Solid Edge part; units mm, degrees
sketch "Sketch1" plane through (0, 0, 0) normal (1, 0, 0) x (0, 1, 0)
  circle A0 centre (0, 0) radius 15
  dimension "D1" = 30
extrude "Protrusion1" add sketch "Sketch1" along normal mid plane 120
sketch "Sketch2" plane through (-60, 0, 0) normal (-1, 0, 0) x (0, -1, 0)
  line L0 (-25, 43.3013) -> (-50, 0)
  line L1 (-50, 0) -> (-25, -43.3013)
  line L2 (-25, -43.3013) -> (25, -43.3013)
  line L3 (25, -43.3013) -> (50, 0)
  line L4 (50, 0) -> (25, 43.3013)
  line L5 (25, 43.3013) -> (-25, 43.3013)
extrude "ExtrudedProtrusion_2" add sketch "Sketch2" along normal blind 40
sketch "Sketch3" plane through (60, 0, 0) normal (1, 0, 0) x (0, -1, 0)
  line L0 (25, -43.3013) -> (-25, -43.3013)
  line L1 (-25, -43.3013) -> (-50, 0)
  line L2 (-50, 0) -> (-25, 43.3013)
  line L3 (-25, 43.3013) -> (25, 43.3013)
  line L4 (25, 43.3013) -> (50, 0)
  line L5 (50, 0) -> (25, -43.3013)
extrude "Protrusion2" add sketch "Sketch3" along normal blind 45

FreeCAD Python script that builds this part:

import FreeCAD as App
import Part
import Sketcher
from FreeCAD import Vector
Q = App.Units.Quantity


def add_polygon(sketch, points):
    """Adds a closed chain of lines whose ends are joined by coincident constraints."""
    first, n = sketch.GeometryCount, len(points)
    for a, b in zip(points, points[1:] + points[:1]):
        sketch.addGeometry(Part.LineSegment(App.Vector(*a, 0), App.Vector(*b, 0)), False)
    for i in range(n):
        sketch.addConstraint(Sketcher.Constraint("Coincident", first + i, 2, first + (i + 1) % n, 1))

doc = App.newDocument("Part")
body = doc.addObject("PartDesign::Body", "Body")

# Sketch on YZ plane
sketch1 = body.newObject("Sketcher::SketchObject", "Sketch")
sketch1.AttachmentSupport = (doc.getObject("YZ_Plane"), [""])
sketch1.MapMode = "FlatFace"
sketch1.addGeometry(Part.Circle(Vector(0, 0, 0), Vector(0, 0, 1), 15), False)
sketch1.addConstraint([
    Sketcher.Constraint("Coincident", 0, 3, -1, 1),
    Sketcher.Constraint("Diameter", 0, 30.0),
])
pad1 = body.newObject("PartDesign::Pad", "Pad")
pad1.Profile = sketch1
pad1.Length = 120
pad1.Midplane = True

# Sketch on YZ plane
sketch2 = body.newObject("Sketcher::SketchObject", "Sketch001")
sketch2.AttachmentSupport = (doc.getObject("YZ_Plane"), [""])
sketch2.MapMode = "FlatFace"
sketch2.AttachmentOffset = App.Placement(Vector(0, 0, -60), App.Rotation())
add_polygon(sketch2, [(-25, 43), (25, 43), (50, 0), (25, -43), (-25, -43), (-50, 0)])  # lines 0-5
sketch2.addConstraint([
    Sketcher.Constraint("Horizontal", 0),
    Sketcher.Constraint("Horizontal", 3),
    Sketcher.Constraint("Symmetric", 0, 2, 3, 2, -1, 1),
    Sketcher.Constraint("Symmetric", 1, 2, 4, 2, -1, 1),
    Sketcher.Constraint("PointOnObject", 1, 2, -1),
    Sketcher.Constraint("Parallel", 2, 5),
    Sketcher.Constraint("Vertical", 0, 2, 2, 2),
    Sketcher.Constraint("DistanceX", 0, 1, 0, 2, 50.0),
    Sketcher.Constraint("Angle", 1, Q("-60 deg")),
    Sketcher.Constraint("Distance", 1, 50.0),
])
pad2 = body.newObject("PartDesign::Pad", "Pad001")
pad2.Profile = sketch2
pad2.Length = 40
pad2.Reversed = True

# Sketch on YZ plane
sketch3 = body.newObject("Sketcher::SketchObject", "Sketch002")
sketch3.AttachmentSupport = (doc.getObject("YZ_Plane"), [""])
sketch3.MapMode = "FlatFace"
sketch3.AttachmentOffset = App.Placement(Vector(0, 0, 60), App.Rotation())
add_polygon(sketch3, [(25, 43), (-25, 43), (-50, 0), (-25, -43), (25, -43), (50, 0)])  # lines 0-5
sketch3.addConstraint([
    Sketcher.Constraint("Horizontal", 0),
    Sketcher.Constraint("Horizontal", 3),
    Sketcher.Constraint("Symmetric", 0, 2, 3, 2, -1, 1),
    Sketcher.Constraint("Symmetric", 1, 2, 4, 2, -1, 1),
    Sketcher.Constraint("PointOnObject", 1, 2, -1),
    Sketcher.Constraint("Parallel", 2, 5),
    Sketcher.Constraint("Vertical", 0, 2, 2, 2),
    Sketcher.Constraint("DistanceX", 0, 2, 0, 1, 50.0),
    Sketcher.Constraint("Angle", 1, Q("-120 deg")),
    Sketcher.Constraint("Distance", 1, 50.0),
])
pad3 = body.newObject("PartDesign::Pad", "Pad002")
pad3.Profile = sketch3
pad3.Length = 45

doc.recompute()
